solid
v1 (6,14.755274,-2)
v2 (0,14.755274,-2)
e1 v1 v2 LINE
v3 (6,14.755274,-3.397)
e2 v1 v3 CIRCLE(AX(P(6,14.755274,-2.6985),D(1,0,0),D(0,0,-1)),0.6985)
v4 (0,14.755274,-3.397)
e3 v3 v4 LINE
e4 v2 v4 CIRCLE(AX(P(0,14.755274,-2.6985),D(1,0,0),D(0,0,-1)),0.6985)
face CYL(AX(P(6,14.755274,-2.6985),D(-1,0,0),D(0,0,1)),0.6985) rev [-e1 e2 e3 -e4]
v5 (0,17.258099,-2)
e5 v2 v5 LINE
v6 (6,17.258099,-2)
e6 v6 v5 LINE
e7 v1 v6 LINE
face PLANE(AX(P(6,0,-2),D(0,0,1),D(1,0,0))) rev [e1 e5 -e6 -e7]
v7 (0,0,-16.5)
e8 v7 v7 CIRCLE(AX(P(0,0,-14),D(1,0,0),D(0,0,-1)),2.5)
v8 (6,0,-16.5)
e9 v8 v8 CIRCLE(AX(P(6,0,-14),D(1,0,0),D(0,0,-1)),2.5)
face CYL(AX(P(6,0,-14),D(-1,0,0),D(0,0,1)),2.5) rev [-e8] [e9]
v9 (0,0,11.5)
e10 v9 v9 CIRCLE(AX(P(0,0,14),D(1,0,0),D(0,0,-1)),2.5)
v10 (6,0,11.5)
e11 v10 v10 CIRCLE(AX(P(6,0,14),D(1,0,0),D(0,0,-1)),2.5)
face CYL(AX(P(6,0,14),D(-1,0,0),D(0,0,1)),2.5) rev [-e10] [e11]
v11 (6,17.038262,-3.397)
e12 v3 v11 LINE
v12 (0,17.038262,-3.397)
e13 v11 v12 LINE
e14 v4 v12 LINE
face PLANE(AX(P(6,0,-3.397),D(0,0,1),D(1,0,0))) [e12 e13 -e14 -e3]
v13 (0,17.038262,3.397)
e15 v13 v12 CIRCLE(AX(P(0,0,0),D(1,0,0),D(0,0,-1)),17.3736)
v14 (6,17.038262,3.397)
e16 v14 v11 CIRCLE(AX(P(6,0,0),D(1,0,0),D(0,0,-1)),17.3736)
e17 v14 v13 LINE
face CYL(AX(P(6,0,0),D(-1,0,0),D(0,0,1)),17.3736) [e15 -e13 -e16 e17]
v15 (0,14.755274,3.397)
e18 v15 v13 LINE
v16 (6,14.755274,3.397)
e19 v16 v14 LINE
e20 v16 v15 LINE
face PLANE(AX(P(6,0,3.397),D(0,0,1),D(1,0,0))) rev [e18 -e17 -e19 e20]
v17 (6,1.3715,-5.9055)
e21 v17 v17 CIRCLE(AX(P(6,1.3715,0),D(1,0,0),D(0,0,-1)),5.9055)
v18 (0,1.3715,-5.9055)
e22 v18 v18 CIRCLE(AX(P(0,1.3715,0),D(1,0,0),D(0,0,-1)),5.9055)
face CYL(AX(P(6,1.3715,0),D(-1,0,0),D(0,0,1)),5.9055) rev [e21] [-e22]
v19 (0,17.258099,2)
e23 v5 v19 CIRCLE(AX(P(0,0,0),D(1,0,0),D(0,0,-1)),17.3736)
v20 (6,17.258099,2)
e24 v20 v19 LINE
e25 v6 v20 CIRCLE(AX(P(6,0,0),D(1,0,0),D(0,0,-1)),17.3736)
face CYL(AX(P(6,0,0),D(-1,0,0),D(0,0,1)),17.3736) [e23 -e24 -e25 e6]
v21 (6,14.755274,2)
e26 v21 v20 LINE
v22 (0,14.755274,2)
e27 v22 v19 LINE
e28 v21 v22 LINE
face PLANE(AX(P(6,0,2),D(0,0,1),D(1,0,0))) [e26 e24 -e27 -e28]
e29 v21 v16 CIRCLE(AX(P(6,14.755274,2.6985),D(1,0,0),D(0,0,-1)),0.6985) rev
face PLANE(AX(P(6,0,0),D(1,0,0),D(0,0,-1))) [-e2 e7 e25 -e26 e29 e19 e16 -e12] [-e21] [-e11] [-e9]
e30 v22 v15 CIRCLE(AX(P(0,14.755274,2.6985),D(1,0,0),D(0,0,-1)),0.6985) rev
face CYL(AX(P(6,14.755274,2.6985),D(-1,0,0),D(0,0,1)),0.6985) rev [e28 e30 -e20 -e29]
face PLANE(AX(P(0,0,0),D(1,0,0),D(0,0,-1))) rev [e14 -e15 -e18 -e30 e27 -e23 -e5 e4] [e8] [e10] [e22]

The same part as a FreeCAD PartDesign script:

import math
import FreeCAD as App
import Part
import Sketcher
from FreeCAD import Vector
Q = App.Units.Quantity

doc = App.newDocument("Part")
body = doc.addObject("PartDesign::Body", "Body")

sketch1 = doc.addObject("Sketcher::SketchObject", "Sketch")
body.addObject(sketch1)
sketch1.AttachmentSupport = (doc.YZ_Plane, [""])
sketch1.MapMode = "FlatFace"
sketch1.addGeometry([
    Part.ArcOfCircle(Part.Circle(Vector(14.8, -2.7, 0), Vector(0, 0, 1), 0.7), math.radians(90), math.radians(270)),
    Part.LineSegment(Vector(14.8, -2, 0), Vector(17.3, -2, 0)),
    Part.ArcOfCircle(Part.Circle(Vector(0, 0, 0), Vector(0, 0, 1), 17.4), math.radians(-6.61), math.radians(6.61)),
    Part.LineSegment(Vector(17.3, 2, 0), Vector(14.8, 2, 0)),
    Part.ArcOfCircle(Part.Circle(Vector(14.8, 2.7, 0), Vector(0, 0, 1), 0.7), math.radians(90), math.radians(270)),
    Part.LineSegment(Vector(14.8, 3.4, 0), Vector(17, 3.4, 0)),
    Part.ArcOfCircle(Part.Circle(Vector(0, 0, 0), Vector(0, 0, 1), 17.4), math.radians(11), math.radians(270)),
    Part.ArcOfCircle(Part.Circle(Vector(0, 0, 0), Vector(0, 0, 1), 17.4), math.radians(-90), math.radians(-11)),
    Part.LineSegment(Vector(17, -3.4, 0), Vector(14.8, -3.4, 0)),
    Part.Circle(Vector(0, 14, 0), Vector(0, 0, 1), 2.5),
    Part.Circle(Vector(0, -14, 0), Vector(0, 0, 1), 2.5),
    Part.Circle(Vector(1.4, 0, 0), Vector(0, 0, 1), 5.9),
], False)
sketch1.addConstraint([
    Sketcher.Constraint("Tangent", 0, 1, 1, 1),
    Sketcher.Constraint("Coincident", 1, 2, 2, 1),
    Sketcher.Constraint("Coincident", 2, 2, 3, 1),
    Sketcher.Constraint("Tangent", 3, 2, 4, 2),
    Sketcher.Constraint("Tangent", 4, 1, 5, 1),
    Sketcher.Constraint("Coincident", 5, 2, 6, 1),
    Sketcher.Constraint("Tangent", 6, 2, 7, 1),
    Sketcher.Constraint("Coincident", 7, 2, 8, 1),
    Sketcher.Constraint("Tangent", 8, 2, 0, 2),
    Sketcher.Constraint("Horizontal", 1),
    Sketcher.Constraint("Horizontal", 3),
    Sketcher.Constraint("Horizontal", 5),
    Sketcher.Constraint("Horizontal", 8),
    Sketcher.Constraint("Coincident", 2, 3, -1, 1),
    Sketcher.Constraint("Coincident", 6, 3, -1, 1),
    Sketcher.Constraint("Equal", 0, 4),
    Sketcher.Constraint("Equal", 2, 6),
    Sketcher.Constraint("Equal", 6, 7),
    Sketcher.Constraint("Equal", 9, 10),
    Sketcher.Constraint("Symmetric", 9, 3, 10, 3, -1, 1),
    Sketcher.Constraint("Symmetric", 0, 3, 4, 3, -1),
    Sketcher.Constraint("PointOnObject", 9, 3, -2),
    Sketcher.Constraint("PointOnObject", 11, 3, -1),
    Sketcher.Constraint("PointOnObject", 6, 2, -2),
    Sketcher.Constraint("Diameter", 11, Q("0.465 in")),
    Sketcher.Constraint("Radius", 2, Q("0.684 in")),
    Sketcher.Constraint("Radius", 0, Q("0.0275 in")),
    Sketcher.Constraint("Diameter", 9, Q("5 mm")),
    Sketcher.Constraint("DistanceX", 5, 1, 5, 2, Q("2.282988 mm")),
    Sketcher.Constraint("DistanceY", 0, 3, -1, 1, Q("2.6985 mm")),
    Sketcher.Constraint("DistanceY", -1, 1, 9, 3, Q("14 mm")),
    Sketcher.Constraint("DistanceX", -1, 1, 11, 3, Q("1.3715 mm")),
])
pad1 = doc.addObject("PartDesign::Pad", "Pad")
body.addObject(pad1)
pad1.Profile = sketch1
pad1.Length = 6

doc.recompute()
